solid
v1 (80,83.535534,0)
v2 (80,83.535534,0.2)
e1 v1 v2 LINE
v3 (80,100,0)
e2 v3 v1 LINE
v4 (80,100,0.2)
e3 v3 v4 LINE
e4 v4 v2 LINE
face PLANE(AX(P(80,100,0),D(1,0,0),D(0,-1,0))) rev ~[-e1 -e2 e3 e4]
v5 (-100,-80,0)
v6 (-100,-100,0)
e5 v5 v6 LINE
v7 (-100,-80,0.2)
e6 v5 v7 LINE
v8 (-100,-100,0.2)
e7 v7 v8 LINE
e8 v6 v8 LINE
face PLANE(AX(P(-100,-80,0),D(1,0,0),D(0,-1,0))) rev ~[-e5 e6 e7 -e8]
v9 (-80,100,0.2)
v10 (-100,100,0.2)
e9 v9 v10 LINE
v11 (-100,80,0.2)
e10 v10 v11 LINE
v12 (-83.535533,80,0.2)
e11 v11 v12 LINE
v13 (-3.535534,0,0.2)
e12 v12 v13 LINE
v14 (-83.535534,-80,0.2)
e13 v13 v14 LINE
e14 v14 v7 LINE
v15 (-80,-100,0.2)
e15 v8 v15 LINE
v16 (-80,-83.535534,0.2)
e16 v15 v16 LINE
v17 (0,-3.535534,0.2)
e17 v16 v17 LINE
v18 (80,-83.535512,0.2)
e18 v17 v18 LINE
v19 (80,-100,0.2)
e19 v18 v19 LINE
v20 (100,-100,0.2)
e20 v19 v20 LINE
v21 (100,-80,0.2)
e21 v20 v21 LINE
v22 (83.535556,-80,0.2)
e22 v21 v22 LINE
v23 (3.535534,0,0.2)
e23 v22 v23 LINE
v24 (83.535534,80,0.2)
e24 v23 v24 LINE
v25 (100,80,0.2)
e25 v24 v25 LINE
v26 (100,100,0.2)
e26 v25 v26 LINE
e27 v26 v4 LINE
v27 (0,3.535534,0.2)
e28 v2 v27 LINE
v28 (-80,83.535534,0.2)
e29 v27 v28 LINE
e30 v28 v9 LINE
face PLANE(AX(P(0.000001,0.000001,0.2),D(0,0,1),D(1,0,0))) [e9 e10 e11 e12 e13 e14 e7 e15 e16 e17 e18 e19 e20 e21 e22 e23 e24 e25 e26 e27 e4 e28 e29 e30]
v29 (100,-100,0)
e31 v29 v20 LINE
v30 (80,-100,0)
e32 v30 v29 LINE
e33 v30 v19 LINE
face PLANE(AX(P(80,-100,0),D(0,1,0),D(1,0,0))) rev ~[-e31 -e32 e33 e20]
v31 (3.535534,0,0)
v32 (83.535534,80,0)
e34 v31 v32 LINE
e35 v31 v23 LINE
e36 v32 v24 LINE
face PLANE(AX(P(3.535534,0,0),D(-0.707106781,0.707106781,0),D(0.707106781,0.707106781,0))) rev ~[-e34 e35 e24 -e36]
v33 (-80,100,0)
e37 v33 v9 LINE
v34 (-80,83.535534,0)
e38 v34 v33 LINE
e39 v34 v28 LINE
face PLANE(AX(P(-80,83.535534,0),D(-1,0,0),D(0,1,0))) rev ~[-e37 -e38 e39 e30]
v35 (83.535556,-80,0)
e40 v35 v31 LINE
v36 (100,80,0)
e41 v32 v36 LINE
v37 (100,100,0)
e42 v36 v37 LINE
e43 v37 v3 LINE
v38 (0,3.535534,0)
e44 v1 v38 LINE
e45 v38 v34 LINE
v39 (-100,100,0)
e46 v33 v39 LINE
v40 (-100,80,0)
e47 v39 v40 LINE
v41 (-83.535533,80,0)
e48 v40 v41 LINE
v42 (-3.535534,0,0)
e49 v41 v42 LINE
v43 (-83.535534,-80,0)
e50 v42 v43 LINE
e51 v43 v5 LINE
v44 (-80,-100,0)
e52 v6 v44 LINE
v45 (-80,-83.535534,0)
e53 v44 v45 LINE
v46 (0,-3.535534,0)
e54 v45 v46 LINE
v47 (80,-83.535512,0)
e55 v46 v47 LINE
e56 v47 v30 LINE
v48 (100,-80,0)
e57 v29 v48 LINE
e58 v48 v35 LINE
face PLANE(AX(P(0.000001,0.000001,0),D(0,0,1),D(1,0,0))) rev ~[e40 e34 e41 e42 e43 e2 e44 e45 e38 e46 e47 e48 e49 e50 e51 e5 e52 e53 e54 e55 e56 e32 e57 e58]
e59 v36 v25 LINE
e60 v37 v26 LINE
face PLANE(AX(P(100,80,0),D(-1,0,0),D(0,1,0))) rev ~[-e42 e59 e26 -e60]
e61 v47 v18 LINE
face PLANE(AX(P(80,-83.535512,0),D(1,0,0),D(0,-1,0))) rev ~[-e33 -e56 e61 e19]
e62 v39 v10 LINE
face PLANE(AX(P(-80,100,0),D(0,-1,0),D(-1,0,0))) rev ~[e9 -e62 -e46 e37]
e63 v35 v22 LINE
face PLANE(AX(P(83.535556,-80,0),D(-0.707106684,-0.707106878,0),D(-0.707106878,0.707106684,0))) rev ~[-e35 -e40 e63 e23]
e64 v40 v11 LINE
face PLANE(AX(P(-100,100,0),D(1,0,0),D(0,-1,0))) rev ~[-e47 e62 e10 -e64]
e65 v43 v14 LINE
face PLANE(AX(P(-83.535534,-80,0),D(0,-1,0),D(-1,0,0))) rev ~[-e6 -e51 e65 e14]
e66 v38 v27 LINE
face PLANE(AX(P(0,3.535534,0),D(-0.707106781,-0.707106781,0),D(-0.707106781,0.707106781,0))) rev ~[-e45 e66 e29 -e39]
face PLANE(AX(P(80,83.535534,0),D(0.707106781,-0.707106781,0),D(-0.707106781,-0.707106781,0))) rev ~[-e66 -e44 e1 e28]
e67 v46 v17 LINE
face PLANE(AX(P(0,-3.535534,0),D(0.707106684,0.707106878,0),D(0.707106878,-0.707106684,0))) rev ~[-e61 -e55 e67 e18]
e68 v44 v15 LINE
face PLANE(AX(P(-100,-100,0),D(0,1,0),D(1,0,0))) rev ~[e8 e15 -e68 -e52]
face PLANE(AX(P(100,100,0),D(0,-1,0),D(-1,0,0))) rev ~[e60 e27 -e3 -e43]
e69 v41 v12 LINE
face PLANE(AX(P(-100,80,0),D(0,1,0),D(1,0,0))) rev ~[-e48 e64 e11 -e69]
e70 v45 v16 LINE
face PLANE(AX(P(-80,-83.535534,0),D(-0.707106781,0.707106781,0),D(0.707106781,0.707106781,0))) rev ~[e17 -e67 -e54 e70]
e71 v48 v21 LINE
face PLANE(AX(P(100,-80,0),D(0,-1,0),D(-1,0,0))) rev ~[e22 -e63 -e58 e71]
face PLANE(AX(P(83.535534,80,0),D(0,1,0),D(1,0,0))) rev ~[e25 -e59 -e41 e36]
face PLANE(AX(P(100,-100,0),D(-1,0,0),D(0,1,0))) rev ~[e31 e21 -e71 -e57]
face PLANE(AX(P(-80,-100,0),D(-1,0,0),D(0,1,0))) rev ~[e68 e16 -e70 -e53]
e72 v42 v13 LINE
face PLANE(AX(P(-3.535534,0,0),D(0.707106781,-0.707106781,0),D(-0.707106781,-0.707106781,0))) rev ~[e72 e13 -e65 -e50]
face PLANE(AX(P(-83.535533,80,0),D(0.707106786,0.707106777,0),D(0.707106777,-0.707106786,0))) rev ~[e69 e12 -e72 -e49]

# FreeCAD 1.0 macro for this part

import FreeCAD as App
import Part
import Sketcher

doc = App.newDocument("Part")
body = doc.addObject("PartDesign::Body", "Body")

# Sketch on XY plane
sketch1 = doc.addObject("Sketcher::SketchObject", "Sketch")
body.addObject(sketch1)
sketch1.AttachmentSupport = (doc.XY_Plane, [""])
sketch1.MapMode = "FlatFace"
sketch1.addGeometry(Part.LineSegment(App.Vector(100, 100, 0), App.Vector(80, 100, 0)), False)
sketch1.addGeometry(Part.LineSegment(App.Vector(80, 100, 0), App.Vector(80, 83.535534, 0)), False)
sketch1.addGeometry(Part.LineSegment(App.Vector(80, 83.535534, 0), App.Vector(0, 3.535534, 0)), False)
sketch1.addGeometry(Part.LineSegment(App.Vector(0, 3.535534, 0), App.Vector(-80, 83.535534, 0)), False)
sketch1.addGeometry(Part.LineSegment(App.Vector(-80, 83.535534, 0), App.Vector(-80, 100, 0)), False)
sketch1.addGeometry(Part.LineSegment(App.Vector(-80, 100, 0), App.Vector(-100, 100, 0)), False)
sketch1.addGeometry(Part.LineSegment(App.Vector(-100, 100, 0), App.Vector(-100, 80, 0)), False)
sketch1.addGeometry(Part.LineSegment(App.Vector(-100, 80, 0), App.Vector(-83.535533, 80, 0)), False)
sketch1.addGeometry(Part.LineSegment(App.Vector(-83.535533, 80, 0), App.Vector(-3.535534, 0, 0)), False)
sketch1.addGeometry(Part.LineSegment(App.Vector(-3.535534, 0, 0), App.Vector(-83.535534, -80, 0)), False)
sketch1.addGeometry(Part.LineSegment(App.Vector(-83.535534, -80, 0), App.Vector(-100, -80, 0)), False)
sketch1.addGeometry(Part.LineSegment(App.Vector(-100, -80, 0), App.Vector(-100, -100, 0)), False)
sketch1.addGeometry(Part.LineSegment(App.Vector(-100, -100, 0), App.Vector(-80, -100, 0)), False)
sketch1.addGeometry(Part.LineSegment(App.Vector(-80, -100, 0), App.Vector(-80, -83.535534, 0)), False)
sketch1.addGeometry(Part.LineSegment(App.Vector(-80, -83.535534, 0), App.Vector(0, -3.535534, 0)), False)
sketch1.addGeometry(Part.LineSegment(App.Vector(0, -3.535534, 0), App.Vector(80, -83.535512, 0)), False)
sketch1.addGeometry(Part.LineSegment(App.Vector(80, -83.535512, 0), App.Vector(80, -100, 0)), False)
sketch1.addGeometry(Part.LineSegment(App.Vector(80, -100, 0), App.Vector(100, -100, 0)), False)
sketch1.addGeometry(Part.LineSegment(App.Vector(100, -100, 0), App.Vector(100, -80, 0)), False)
sketch1.addGeometry(Part.LineSegment(App.Vector(100, -80, 0), App.Vector(83.535556, -80, 0)), False)
sketch1.addGeometry(Part.LineSegment(App.Vector(83.535556, -80, 0), App.Vector(3.535534, 0, 0)), False)
sketch1.addGeometry(Part.LineSegment(App.Vector(3.535534, 0, 0), App.Vector(83.535534, 80, 0)), False)
sketch1.addGeometry(Part.LineSegment(App.Vector(83.535534, 80, 0), App.Vector(100, 80, 0)), False)
sketch1.addGeometry(Part.LineSegment(App.Vector(100, 80, 0), App.Vector(100, 100, 0)), False)
sketch1.addConstraint(Sketcher.Constraint("Coincident", 0, 2, 1, 1))
sketch1.addConstraint(Sketcher.Constraint("Coincident", 1, 2, 2, 1))
sketch1.addConstraint(Sketcher.Constraint("Coincident", 2, 2, 3, 1))
sketch1.addConstraint(Sketcher.Constraint("Coincident", 3, 2, 4, 1))
sketch1.addConstraint(Sketcher.Constraint("Coincident", 4, 2, 5, 1))
sketch1.addConstraint(Sketcher.Constraint("Coincident", 5, 2, 6, 1))
sketch1.addConstraint(Sketcher.Constraint("Coincident", 6, 2, 7, 1))
sketch1.addConstraint(Sketcher.Constraint("Coincident", 7, 2, 8, 1))
sketch1.addConstraint(Sketcher.Constraint("Coincident", 8, 2, 9, 1))
sketch1.addConstraint(Sketcher.Constraint("Coincident", 9, 2, 10, 1))
sketch1.addConstraint(Sketcher.Constraint("Coincident", 10, 2, 11, 1))
sketch1.addConstraint(Sketcher.Constraint("Coincident", 11, 2, 12, 1))
sketch1.addConstraint(Sketcher.Constraint("Coincident", 12, 2, 13, 1))
sketch1.addConstraint(Sketcher.Constraint("Coincident", 13, 2, 14, 1))
sketch1.addConstraint(Sketcher.Constraint("Coincident", 14, 2, 15, 1))
sketch1.addConstraint(Sketcher.Constraint("Coincident", 15, 2, 16, 1))
sketch1.addConstraint(Sketcher.Constraint("Coincident", 16, 2, 17, 1))
sketch1.addConstraint(Sketcher.Constraint("Coincident", 17, 2, 18, 1))
sketch1.addConstraint(Sketcher.Constraint("Coincident", 18, 2, 19, 1))
sketch1.addConstraint(Sketcher.Constraint("Coincident", 19, 2, 20, 1))
sketch1.addConstraint(Sketcher.Constraint("Coincident", 20, 2, 21, 1))
sketch1.addConstraint(Sketcher.Constraint("Coincident", 21, 2, 22, 1))
sketch1.addConstraint(Sketcher.Constraint("Coincident", 22, 2, 23, 1))
sketch1.addConstraint(Sketcher.Constraint("Coincident", 23, 2, 0, 1))
sketch1.addConstraint(Sketcher.Constraint("Horizontal", 0))
sketch1.addConstraint(Sketcher.Constraint("Vertical", 1))
sketch1.addConstraint(Sketcher.Constraint("Vertical", 4))
sketch1.addConstraint(Sketcher.Constraint("Horizontal", 5))
sketch1.addConstraint(Sketcher.Constraint("Vertical", 6))
sketch1.addConstraint(Sketcher.Constraint("Horizontal", 7))
sketch1.addConstraint(Sketcher.Constraint("Horizontal", 10))
sketch1.addConstraint(Sketcher.Constraint("Vertical", 11))
sketch1.addConstraint(Sketcher.Constraint("Horizontal", 12))
sketch1.addConstraint(Sketcher.Constraint("Vertical", 13))
sketch1.addConstraint(Sketcher.Constraint("Vertical", 16))
sketch1.addConstraint(Sketcher.Constraint("Horizontal", 17))
sketch1.addConstraint(Sketcher.Constraint("Vertical", 18))
sketch1.addConstraint(Sketcher.Constraint("Horizontal", 19))
sketch1.addConstraint(Sketcher.Constraint("Horizontal", 22))
sketch1.addConstraint(Sketcher.Constraint("Vertical", 23))
sketch1.addConstraint(Sketcher.Constraint("PointOnObject", 2, 2, -2))
sketch1.addConstraint(Sketcher.Constraint("PointOnObject", 8, 2, -1))
sketch1.addConstraint(Sketcher.Constraint("PointOnObject", 14, 2, -2))
sketch1.addConstraint(Sketcher.Constraint("PointOnObject", 20, 2, -1))
sketch1.addConstraint(Sketcher.Constraint("DistanceX", 0, 2, 0, 1, 20.0))
sketch1.addConstraint(Sketcher.Constraint("DistanceX", 5, 2, 5, 1, 20.0))
sketch1.addConstraint(Sketcher.Constraint("DistanceX", 12, 1, 12, 2, 20.0))
sketch1.addConstraint(Sketcher.Constraint("DistanceX", 17, 1, 17, 2, 20.0))
sketch1.addConstraint(Sketcher.Constraint("DistanceY", 6, 2, 6, 1, 20.0))
sketch1.addConstraint(Sketcher.Constraint("DistanceY", 11, 2, 11, 1, 20.0))
sketch1.addConstraint(Sketcher.Constraint("DistanceY", 18, 1, 18, 2, 20.0))
sketch1.addConstraint(Sketcher.Constraint("DistanceY", 23, 1, 23, 2, 20.0))
sketch1.addConstraint(Sketcher.Constraint("DistanceX", -1, 1, 0, 2, 80.0))
sketch1.addConstraint(Sketcher.Constraint("DistanceY", -1, 1, 0, 2, 100.0))
sketch1.addConstraint(Sketcher.Constraint("DistanceX", 3, 2, -1, 1, 80.0))
sketch1.addConstraint(Sketcher.Constraint("DistanceY", -1, 1, 4, 2, 100.0))
sketch1.addConstraint(Sketcher.Constraint("DistanceY", 9, 2, -1, 1, 80.0))
sketch1.addConstraint(Sketcher.Constraint("DistanceX", 10, 2, -1, 1, 100.0))
sketch1.addConstraint(Sketcher.Constraint("DistanceX", -1, 1, 15, 2, 80.0))
sketch1.addConstraint(Sketcher.Constraint("DistanceY", 16, 2, -1, 1, 100.0))
sketch1.addConstraint(Sketcher.Constraint("DistanceY", 2, 2, 1, 2, 80.0))
sketch1.addConstraint(Sketcher.Constraint("DistanceY", 2, 2, 3, 2, 80.0))
sketch1.addConstraint(Sketcher.Constraint("DistanceX", 7, 2, 8, 2, 79.999999))
sketch1.addConstraint(Sketcher.Constraint("DistanceX", 9, 2, 8, 2, 80.0))
sketch1.addConstraint(Sketcher.Constraint("DistanceY", 13, 2, 14, 2, 80.0))
sketch1.addConstraint(Sketcher.Constraint("DistanceX", 20, 2, 21, 2, 80.0))
sketch1.addConstraint(Sketcher.Constraint("Distance", 20, 113.137101))
sketch1.addConstraint(Sketcher.Constraint("DistanceY", 16, 2, 16, 1, 16.464488))
sketch1.addConstraint(Sketcher.Constraint("Distance", 15, 113.137069))
sketch1.addConstraint(Sketcher.Constraint("DistanceX", 7, 1, 7, 2, 16.464467))
sketch1.addConstraint(Sketcher.Constraint("DistanceX", 19, 2, 19, 1, 16.464444))
sketch1.addConstraint(Sketcher.Constraint("DistanceY", 1, 2, 1, 1, 16.464466))
pad1 = doc.addObject("PartDesign::Pad", "Pad")
body.addObject(pad1)
pad1.Profile = sketch1
pad1.Length = 0.2

doc.recompute()
